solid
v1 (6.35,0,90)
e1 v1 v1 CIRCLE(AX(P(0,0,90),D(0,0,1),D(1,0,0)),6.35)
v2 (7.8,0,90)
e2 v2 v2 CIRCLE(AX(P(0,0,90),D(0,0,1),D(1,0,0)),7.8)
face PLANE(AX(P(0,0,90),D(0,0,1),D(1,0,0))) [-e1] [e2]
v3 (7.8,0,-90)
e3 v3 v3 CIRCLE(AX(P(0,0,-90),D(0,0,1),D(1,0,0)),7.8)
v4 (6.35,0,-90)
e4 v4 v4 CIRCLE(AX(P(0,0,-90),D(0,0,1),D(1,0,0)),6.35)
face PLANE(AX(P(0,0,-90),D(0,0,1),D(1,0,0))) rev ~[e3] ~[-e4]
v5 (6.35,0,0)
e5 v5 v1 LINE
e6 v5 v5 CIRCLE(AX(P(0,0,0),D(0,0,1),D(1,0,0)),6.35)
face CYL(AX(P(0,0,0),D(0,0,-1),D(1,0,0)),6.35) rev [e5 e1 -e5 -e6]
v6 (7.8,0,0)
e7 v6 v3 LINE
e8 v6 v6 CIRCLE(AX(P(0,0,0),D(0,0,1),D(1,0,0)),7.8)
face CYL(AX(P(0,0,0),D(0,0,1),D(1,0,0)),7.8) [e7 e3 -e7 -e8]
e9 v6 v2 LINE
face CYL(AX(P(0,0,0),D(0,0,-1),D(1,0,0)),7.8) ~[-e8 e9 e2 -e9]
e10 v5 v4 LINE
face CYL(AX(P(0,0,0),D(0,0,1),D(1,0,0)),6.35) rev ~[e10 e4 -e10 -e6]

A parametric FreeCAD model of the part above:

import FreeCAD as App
import Part
import Sketcher

doc = App.newDocument("Part")
body = doc.addObject("PartDesign::Body", "Body")

sketch1 = body.newObject("Sketcher::SketchObject", "Sketch")
sketch1.AttachmentSupport = (doc.getObject("XY_Plane"), [""])
sketch1.MapMode = "FlatFace"
sketch1.addGeometry([
    Part.Circle(App.Vector(0, 0, 0), App.Vector(0, 0, 1), 8),
    Part.Circle(App.Vector(0, 0, 0), App.Vector(0, 0, 1), 6),
], False)
sketch1.addConstraint([
    Sketcher.Constraint("Coincident", 0, 3, -1, 1),
    Sketcher.Constraint("Coincident", 1, 3, -1, 1),
    Sketcher.Constraint("Diameter", 0, 15.6),
    Sketcher.Constraint("Diameter", 1, 12.7),
])
pad1 = body.newObject("PartDesign::Pad", "Pad")
pad1.Profile = sketch1
pad1.Length = 180
pad1.Midplane = True

doc.recompute()
